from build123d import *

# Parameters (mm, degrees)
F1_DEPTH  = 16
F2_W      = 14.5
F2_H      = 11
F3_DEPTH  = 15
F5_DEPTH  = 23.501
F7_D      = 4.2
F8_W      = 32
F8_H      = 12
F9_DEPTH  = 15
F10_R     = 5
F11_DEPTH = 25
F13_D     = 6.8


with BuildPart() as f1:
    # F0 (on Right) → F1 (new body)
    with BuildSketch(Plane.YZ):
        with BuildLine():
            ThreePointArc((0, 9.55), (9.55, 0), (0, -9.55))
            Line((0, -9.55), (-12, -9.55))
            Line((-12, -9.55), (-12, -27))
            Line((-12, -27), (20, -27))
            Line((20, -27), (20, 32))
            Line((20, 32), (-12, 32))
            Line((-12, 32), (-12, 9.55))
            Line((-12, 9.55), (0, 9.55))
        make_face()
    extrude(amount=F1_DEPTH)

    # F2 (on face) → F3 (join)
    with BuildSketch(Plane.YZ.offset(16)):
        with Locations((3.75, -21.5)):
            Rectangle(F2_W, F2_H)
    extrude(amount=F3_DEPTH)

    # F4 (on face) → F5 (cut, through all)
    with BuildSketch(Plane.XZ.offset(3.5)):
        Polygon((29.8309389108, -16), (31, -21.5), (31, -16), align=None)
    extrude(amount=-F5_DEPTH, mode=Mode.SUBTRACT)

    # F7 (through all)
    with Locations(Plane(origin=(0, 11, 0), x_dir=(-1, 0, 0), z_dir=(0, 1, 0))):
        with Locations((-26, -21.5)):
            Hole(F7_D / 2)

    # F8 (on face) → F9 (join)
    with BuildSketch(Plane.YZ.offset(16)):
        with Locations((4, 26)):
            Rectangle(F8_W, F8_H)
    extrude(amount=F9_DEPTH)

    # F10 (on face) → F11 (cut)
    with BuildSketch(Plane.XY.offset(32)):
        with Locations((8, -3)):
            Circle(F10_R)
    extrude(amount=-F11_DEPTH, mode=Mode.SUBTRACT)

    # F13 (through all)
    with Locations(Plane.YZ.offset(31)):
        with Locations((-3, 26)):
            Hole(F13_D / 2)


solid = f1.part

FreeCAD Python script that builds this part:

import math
import FreeCAD as App
import Part
import Sketcher
from FreeCAD import Vector
Q = App.Units.Quantity


def add_polygon(sketch, points):
    """Adds a closed chain of lines whose ends are joined by coincident constraints."""
    first, n = sketch.GeometryCount, len(points)
    for a, b in zip(points, points[1:] + points[:1]):
        sketch.addGeometry(Part.LineSegment(App.Vector(*a, 0), App.Vector(*b, 0)), False)
    for i in range(n):
        sketch.addConstraint(Sketcher.Constraint("Coincident", first + i, 2, first + (i + 1) % n, 1))

doc = App.newDocument("Part")
body = doc.addObject("PartDesign::Body", "Body")

# Sketch on YZ plane
sketch1 = doc.addObject("Sketcher::SketchObject", "Sketch")
body.addObject(sketch1)
sketch1.AttachmentSupport = (doc.YZ_Plane, [""])
sketch1.MapMode = "FlatFace"
sketch1.addGeometry([
    Part.ArcOfCircle(Part.Circle(Vector(0, 0, 0), Vector(0, 0, 1), 9.55), math.radians(-90), math.radians(90)),  # 0
    Part.LineSegment(Vector(0, -9.55, 0), Vector(-12, -9.55, 0)),  # 1
    Part.LineSegment(Vector(-12, -9.55, 0), Vector(-12, -27, 0)),  # 2
    Part.LineSegment(Vector(-12, -27, 0), Vector(20, -27, 0)),  # 3
    Part.LineSegment(Vector(20, -27, 0), Vector(20, 32, 0)),  # 4
    Part.LineSegment(Vector(20, 32, 0), Vector(-12, 32, 0)),  # 5
    Part.LineSegment(Vector(-12, 32, 0), Vector(-12, 9.55, 0)),  # 6
    Part.LineSegment(Vector(-12, 9.55, 0), Vector(0, 9.55, 0)),  # 7
], False)
sketch1.addConstraint([
    Sketcher.Constraint("Tangent", 0, 1, 1, 1),
    Sketcher.Constraint("Coincident", 1, 2, 2, 1),
    Sketcher.Constraint("Coincident", 2, 2, 3, 1),
    Sketcher.Constraint("Coincident", 3, 2, 4, 1),
    Sketcher.Constraint("Coincident", 4, 2, 5, 1),
    Sketcher.Constraint("Coincident", 5, 2, 6, 1),
    Sketcher.Constraint("Coincident", 6, 2, 7, 1),
    Sketcher.Constraint("Tangent", 7, 2, 0, 2),
    Sketcher.Constraint("Horizontal", 1),
    Sketcher.Constraint("Vertical", 2),
    Sketcher.Constraint("Horizontal", 3),
    Sketcher.Constraint("Vertical", 4),
    Sketcher.Constraint("Horizontal", 5),
    Sketcher.Constraint("Vertical", 6),
    Sketcher.Constraint("Horizontal", 7),
    Sketcher.Constraint("Coincident", 0, 3, -1, 1),
    Sketcher.Constraint("Vertical", 2, 2, 5, 2),
    Sketcher.Constraint("DistanceX", 1, 2, 1, 1, Q("12 mm")),
    Sketcher.Constraint("DistanceX", 3, 1, 3, 2, Q("32 mm")),
    Sketcher.Constraint("DistanceY", 4, 1, 4, 2, Q("59 mm")),
    Sketcher.Constraint("Radius", 0, Q("9.55 mm")),
    Sketcher.Constraint("DistanceY", 2, 2, -1, 1, Q("27 mm")),
])
pad1 = doc.addObject("PartDesign::Pad", "Pad")
body.addObject(pad1)
pad1.Profile = sketch1
pad1.Length = 16

# Sketch on YZ plane
sketch2 = doc.addObject("Sketcher::SketchObject", "Sketch001")
body.addObject(sketch2)
sketch2.AttachmentSupport = (doc.YZ_Plane, [""])
sketch2.MapMode = "FlatFace"
sketch2.AttachmentOffset = App.Placement(Vector(0, 0, 16), App.Rotation())
add_polygon(sketch2, [(-3.5, -16), (-3.5, -27), (11, -27), (11, -16)])  # lines 0-3
sketch2.addConstraint([
    Sketcher.Constraint("Vertical", 0),
    Sketcher.Constraint("Horizontal", 1),
    Sketcher.Constraint("Vertical", 2),
    Sketcher.Constraint("Horizontal", 3),
    Sketcher.Constraint("DistanceY", 0, 2, 0, 1, Q("11 mm")),
    Sketcher.Constraint("DistanceX", 1, 1, 1, 2, Q("14.5 mm")),
    Sketcher.Constraint("DistanceY", 0, 2, -1, 1, Q("27 mm")),
    Sketcher.Constraint("DistanceX", -1, 1, 1, 2, Q("11 mm")),
])
pad2 = doc.addObject("PartDesign::Pad", "Pad001")
body.addObject(pad2)
pad2.Profile = sketch2
pad2.Length = 15

# Sketch on XZ plane
sketch3 = doc.addObject("Sketcher::SketchObject", "Sketch002")
body.addObject(sketch3)
sketch3.AttachmentSupport = (doc.XZ_Plane, [""])
sketch3.MapMode = "FlatFace"
sketch3.AttachmentOffset = App.Placement(Vector(0, 0, 3.5), App.Rotation())
add_polygon(sketch3, [(29.830939, -16), (31, -21.5), (31, -16)])  # lines 0-2
sketch3.addConstraint([
    Sketcher.Constraint("Vertical", 1),
    Sketcher.Constraint("Horizontal", 2),
    Sketcher.Constraint("Angle", 0, Q("-78 deg")),
    Sketcher.Constraint("DistanceY", 1, 1, 1, 2, Q("5.5 mm")),
    Sketcher.Constraint("DistanceX", -1, 1, 0, 2, Q("31 mm")),
    Sketcher.Constraint("DistanceY", 1, 2, -1, 1, Q("16 mm")),
])
pocket1 = doc.addObject("PartDesign::Pocket", "Pocket")
body.addObject(pocket1)
pocket1.Profile = sketch3
pocket1.Type = "ThroughAll"

# Sketch on XZ plane
sketch4 = doc.addObject("Sketcher::SketchObject", "Sketch003")
body.addObject(sketch4)
sketch4.AttachmentSupport = (doc.XZ_Plane, [""])
sketch4.MapMode = "FlatFace"
sketch4.AttachmentOffset = App.Placement(Vector(0, 0, -11), App.Rotation())
sketch4.addGeometry(Part.Circle(Vector(26, -21.5, 0), Vector(0, 0, 1), 2.1), False)
sketch4.addConstraint([
    Sketcher.Constraint("Diameter", 0, Q("4.2 mm")),
    Sketcher.Constraint("DistanceX", -1, 1, 0, 3, Q("26 mm")),
    Sketcher.Constraint("DistanceY", 0, 3, -1, 1, Q("21.5 mm")),
])
doc.recompute()
hole = doc.addObject("PartDesign::Hole", "Hole")
body.addObject(hole)
hole.Profile = sketch4
hole.ThreadType = "None"
hole.Diameter = 4.2
hole.DepthType = "ThroughAll"
hole.Reversed = True

# Sketch on YZ plane
sketch5 = doc.addObject("Sketcher::SketchObject", "Sketch004")
body.addObject(sketch5)
sketch5.AttachmentSupport = (doc.YZ_Plane, [""])
sketch5.MapMode = "FlatFace"
sketch5.AttachmentOffset = App.Placement(Vector(0, 0, 16), App.Rotation())
add_polygon(sketch5, [(-12, 32), (-12, 20), (20, 20), (20, 32)])  # lines 0-3
sketch5.addConstraint([
    Sketcher.Constraint("Vertical", 0),
    Sketcher.Constraint("Horizontal", 1),
    Sketcher.Constraint("Vertical", 2),
    Sketcher.Constraint("Horizontal", 3),
    Sketcher.Constraint("DistanceX", 1, 1, 1, 2, Q("32 mm")),
    Sketcher.Constraint("DistanceY", 0, 2, 0, 1, Q("12 mm")),
    Sketcher.Constraint("DistanceX", 0, 2, -1, 1, Q("12 mm")),
    Sketcher.Constraint("DistanceY", -1, 1, 0, 2, Q("20 mm")),
])
pad3 = doc.addObject("PartDesign::Pad", "Pad002")
body.addObject(pad3)
pad3.Profile = sketch5
pad3.Length = 15

# Sketch on XY plane
sketch6 = doc.addObject("Sketcher::SketchObject", "Sketch005")
body.addObject(sketch6)
sketch6.AttachmentSupport = (doc.XY_Plane, [""])
sketch6.MapMode = "FlatFace"
sketch6.AttachmentOffset = App.Placement(Vector(0, 0, 32), App.Rotation())
sketch6.addGeometry(Part.Circle(Vector(8, -3, 0), Vector(0, 0, 1), 5), False)
sketch6.addConstraint([
    Sketcher.Constraint("Diameter", 0, Q("10 mm")),
    Sketcher.Constraint("DistanceX", -1, 1, 0, 3, Q("8 mm")),
    Sketcher.Constraint("DistanceY", 0, 3, -1, 1, Q("3 mm")),
])
pocket2 = doc.addObject("PartDesign::Pocket", "Pocket001")
body.addObject(pocket2)
pocket2.Profile = sketch6
pocket2.Length = 25

# Sketch on YZ plane
sketch7 = doc.addObject("Sketcher::SketchObject", "Sketch006")
body.addObject(sketch7)
sketch7.AttachmentSupport = (doc.YZ_Plane, [""])
sketch7.MapMode = "FlatFace"
sketch7.AttachmentOffset = App.Placement(Vector(0, 0, 31), App.Rotation())
sketch7.addGeometry(Part.Circle(Vector(-3, 26, 0), Vector(0, 0, 1), 3.4), False)
sketch7.addConstraint([
    Sketcher.Constraint("Diameter", 0, Q("6.8 mm")),
    Sketcher.Constraint("DistanceX", 0, 3, -1, 1, Q("3 mm")),
    Sketcher.Constraint("DistanceY", -1, 1, 0, 3, Q("26 mm")),
])
doc.recompute()
hole2 = doc.addObject("PartDesign::Hole", "Hole001")
body.addObject(hole2)
hole2.Profile = sketch7
hole2.ThreadType = "None"
hole2.Diameter = 6.8
hole2.DepthType = "ThroughAll"

doc.recompute()
